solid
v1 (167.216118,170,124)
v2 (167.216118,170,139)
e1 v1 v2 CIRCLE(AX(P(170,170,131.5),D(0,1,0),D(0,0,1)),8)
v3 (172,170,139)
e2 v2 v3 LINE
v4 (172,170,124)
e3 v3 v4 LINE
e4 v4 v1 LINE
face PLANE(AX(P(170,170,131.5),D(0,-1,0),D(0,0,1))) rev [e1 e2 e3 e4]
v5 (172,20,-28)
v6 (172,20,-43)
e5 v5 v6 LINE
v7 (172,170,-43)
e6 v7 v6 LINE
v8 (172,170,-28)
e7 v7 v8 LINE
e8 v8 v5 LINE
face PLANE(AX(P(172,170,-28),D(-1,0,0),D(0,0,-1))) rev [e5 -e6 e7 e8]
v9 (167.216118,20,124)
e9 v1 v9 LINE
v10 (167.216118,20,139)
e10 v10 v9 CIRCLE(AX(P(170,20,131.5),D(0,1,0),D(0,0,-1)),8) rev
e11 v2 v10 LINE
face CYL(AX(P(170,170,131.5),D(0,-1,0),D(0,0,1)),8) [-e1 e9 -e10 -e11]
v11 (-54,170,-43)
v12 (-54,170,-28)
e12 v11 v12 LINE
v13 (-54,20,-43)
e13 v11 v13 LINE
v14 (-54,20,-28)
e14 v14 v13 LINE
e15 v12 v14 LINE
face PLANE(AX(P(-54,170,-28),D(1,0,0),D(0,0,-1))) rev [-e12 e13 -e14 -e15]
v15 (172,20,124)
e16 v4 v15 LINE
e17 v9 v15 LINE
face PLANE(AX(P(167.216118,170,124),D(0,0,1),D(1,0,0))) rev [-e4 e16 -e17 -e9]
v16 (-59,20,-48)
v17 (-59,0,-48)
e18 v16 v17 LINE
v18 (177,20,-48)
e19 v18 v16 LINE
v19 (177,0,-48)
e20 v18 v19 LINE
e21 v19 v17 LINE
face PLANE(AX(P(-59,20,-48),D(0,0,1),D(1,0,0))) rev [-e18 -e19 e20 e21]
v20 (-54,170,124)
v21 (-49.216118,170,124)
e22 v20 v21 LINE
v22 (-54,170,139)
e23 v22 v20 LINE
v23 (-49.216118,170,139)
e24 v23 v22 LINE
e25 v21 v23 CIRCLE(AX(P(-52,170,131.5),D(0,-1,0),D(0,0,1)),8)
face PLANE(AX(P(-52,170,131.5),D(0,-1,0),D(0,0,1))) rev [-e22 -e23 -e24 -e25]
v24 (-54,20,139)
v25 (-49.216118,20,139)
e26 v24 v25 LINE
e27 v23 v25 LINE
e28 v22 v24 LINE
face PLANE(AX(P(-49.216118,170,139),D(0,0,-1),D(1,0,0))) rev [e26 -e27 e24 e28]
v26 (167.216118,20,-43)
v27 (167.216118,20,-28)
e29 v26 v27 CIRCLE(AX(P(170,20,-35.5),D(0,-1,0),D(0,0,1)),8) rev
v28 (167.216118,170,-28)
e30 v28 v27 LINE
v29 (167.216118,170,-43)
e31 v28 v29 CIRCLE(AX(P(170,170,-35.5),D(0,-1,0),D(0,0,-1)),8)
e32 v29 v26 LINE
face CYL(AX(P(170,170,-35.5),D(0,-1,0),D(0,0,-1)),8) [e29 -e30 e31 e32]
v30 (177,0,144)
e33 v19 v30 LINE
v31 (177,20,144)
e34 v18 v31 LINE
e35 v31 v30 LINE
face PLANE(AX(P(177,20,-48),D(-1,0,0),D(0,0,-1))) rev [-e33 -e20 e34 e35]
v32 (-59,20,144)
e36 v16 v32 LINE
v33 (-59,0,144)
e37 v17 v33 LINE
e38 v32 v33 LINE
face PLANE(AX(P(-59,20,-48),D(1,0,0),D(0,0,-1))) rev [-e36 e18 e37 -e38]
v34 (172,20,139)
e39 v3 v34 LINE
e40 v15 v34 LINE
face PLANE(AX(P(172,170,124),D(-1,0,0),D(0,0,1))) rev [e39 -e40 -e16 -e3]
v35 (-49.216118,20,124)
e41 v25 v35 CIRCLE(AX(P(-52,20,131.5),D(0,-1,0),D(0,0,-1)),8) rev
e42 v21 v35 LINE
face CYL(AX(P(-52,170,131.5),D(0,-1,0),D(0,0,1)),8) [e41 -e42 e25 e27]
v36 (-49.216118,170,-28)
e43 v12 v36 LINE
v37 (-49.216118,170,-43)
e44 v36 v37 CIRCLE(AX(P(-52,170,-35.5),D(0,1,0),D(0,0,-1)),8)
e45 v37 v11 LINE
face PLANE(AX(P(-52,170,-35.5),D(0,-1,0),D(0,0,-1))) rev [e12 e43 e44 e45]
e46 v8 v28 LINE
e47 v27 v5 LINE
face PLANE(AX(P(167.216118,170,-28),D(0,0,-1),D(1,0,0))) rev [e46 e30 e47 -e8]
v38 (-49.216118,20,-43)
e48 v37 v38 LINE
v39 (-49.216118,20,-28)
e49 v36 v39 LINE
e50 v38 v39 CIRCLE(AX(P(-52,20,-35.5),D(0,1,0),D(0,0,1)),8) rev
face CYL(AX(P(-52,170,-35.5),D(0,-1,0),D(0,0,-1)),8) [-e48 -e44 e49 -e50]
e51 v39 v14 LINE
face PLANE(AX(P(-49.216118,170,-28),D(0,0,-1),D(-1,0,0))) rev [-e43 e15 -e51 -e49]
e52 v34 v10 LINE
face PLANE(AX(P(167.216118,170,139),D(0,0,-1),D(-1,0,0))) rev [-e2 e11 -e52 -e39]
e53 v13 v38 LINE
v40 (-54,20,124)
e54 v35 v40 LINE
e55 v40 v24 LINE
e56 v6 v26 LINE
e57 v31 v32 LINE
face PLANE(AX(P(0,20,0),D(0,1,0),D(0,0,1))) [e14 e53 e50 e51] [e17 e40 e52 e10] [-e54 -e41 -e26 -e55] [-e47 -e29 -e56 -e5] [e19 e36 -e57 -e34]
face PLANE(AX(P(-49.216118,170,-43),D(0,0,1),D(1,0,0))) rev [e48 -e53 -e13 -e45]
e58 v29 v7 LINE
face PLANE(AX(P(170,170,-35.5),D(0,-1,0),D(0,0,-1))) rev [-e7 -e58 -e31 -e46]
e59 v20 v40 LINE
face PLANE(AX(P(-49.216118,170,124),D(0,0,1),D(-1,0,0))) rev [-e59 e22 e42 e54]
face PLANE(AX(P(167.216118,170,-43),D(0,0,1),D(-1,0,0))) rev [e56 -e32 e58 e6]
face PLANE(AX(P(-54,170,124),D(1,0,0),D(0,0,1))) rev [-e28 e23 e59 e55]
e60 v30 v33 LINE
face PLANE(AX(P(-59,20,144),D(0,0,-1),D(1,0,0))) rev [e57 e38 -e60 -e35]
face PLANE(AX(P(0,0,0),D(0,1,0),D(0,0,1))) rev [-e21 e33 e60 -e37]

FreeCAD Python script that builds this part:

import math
import FreeCAD as App
import Part
import Sketcher

V = App.Vector
Q = App.Units.Quantity


def add_polygon(sketch, points):
    """Adds a closed chain of lines whose ends are joined by coincident constraints."""
    first, n = sketch.GeometryCount, len(points)
    for a, b in zip(points, points[1:] + points[:1]):
        sketch.addGeometry(Part.LineSegment(App.Vector(*a, 0), App.Vector(*b, 0)), False)
    for i in range(n):
        sketch.addConstraint(Sketcher.Constraint("Coincident", first + i, 2, first + (i + 1) % n, 1))

doc = App.newDocument("Part")
params = doc.addObject("Spreadsheet::Sheet", "Params")
for row, (alias, value) in enumerate([
    ("sketch1_width", "118 mm"),
    ("sketch1_height", "96 mm"),
    ("pad1_length", "20 mm"),
    ("sketch2_radius", "8 mm"),
    ("sketch2_height", "15 mm"),
    ("pad2_length", "170 mm"),
], start=1):
    params.set(f"A{row}", alias)
    params.set(f"B{row}", "=" + value)
    params.setAlias(f"B{row}", alias)

body = doc.addObject("PartDesign::Body", "Body")

sketch1 = doc.addObject("Sketcher::SketchObject", "Sketch")
body.addObject(sketch1)
sketch1.AttachmentSupport = (doc.XZ_Plane, [""])
sketch1.MapMode = "FlatFace"
add_polygon(sketch1, [(-59, -48), (-59, 48), (59, 48), (59, -48)])
sketch1.addConstraint(Sketcher.Constraint("Vertical", 0))
sketch1.addConstraint(Sketcher.Constraint("Horizontal", 1))
sketch1.addConstraint(Sketcher.Constraint("Vertical", 2))
sketch1.addConstraint(Sketcher.Constraint("Horizontal", 3))
sketch1.addConstraint(Sketcher.Constraint("Symmetric", 0, 2, 2, 2, -1, 1))
sketch1.addConstraint(Sketcher.Constraint("DistanceX", 1, 1, 1, 2, Q("118 mm")))
sketch1.addConstraint(Sketcher.Constraint("DistanceY", 0, 1, 0, 2, Q("96 mm")))
sketch1.setExpression("Constraints[9]", "Params.sketch1_width")
sketch1.setExpression("Constraints[10]", "Params.sketch1_height")
pad1 = doc.addObject("PartDesign::Pad", "Pad")
body.addObject(pad1)
pad1.Profile = sketch1
pad1.setExpression("Length", "Params.pad1_length")
pad1.Reversed = True

sketch2 = doc.addObject("Sketcher::SketchObject", "Sketch001")
body.addObject(sketch2)
sketch2.AttachmentSupport = (doc.XZ_Plane, [""])
sketch2.MapMode = "FlatFace"
sketch2.addGeometry(Part.LineSegment(V(-54, -28, 0), V(-49.2, -28, 0)), False)
sketch2.addGeometry(Part.ArcOfCircle(Part.Circle(V(-52, -35.5, 0), V(0, 0, 1), 8), math.radians(-70), math.radians(70)), False)
sketch2.addGeometry(Part.LineSegment(V(-49.2, -43, 0), V(-54, -43, 0)), False)
sketch2.addGeometry(Part.LineSegment(V(-54, -43, 0), V(-54, -28, 0)), False)
sketch2.addConstraint(Sketcher.Constraint("Coincident", 0, 2, 1, 2))
sketch2.addConstraint(Sketcher.Constraint("Coincident", 1, 1, 2, 1))
sketch2.addConstraint(Sketcher.Constraint("Coincident", 2, 2, 3, 1))
sketch2.addConstraint(Sketcher.Constraint("Coincident", 3, 2, 0, 1))
sketch2.addConstraint(Sketcher.Constraint("Horizontal", 0))
sketch2.addConstraint(Sketcher.Constraint("Horizontal", 2))
sketch2.addConstraint(Sketcher.Constraint("Vertical", 3))
sketch2.addConstraint(Sketcher.Constraint("Vertical", 0, 2, 1, 1))
sketch2.addConstraint(Sketcher.Constraint("Radius", 1, Q("8 mm")))
sketch2.addConstraint(Sketcher.Constraint("DistanceY", 3, 1, 3, 2, Q("15 mm")))
sketch2.addConstraint(Sketcher.Constraint("DistanceX", 1, 3, -1, 1, Q("52 mm")))
sketch2.addConstraint(Sketcher.Constraint("DistanceY", 0, 2, -1, 1, Q("28 mm")))
sketch2.addConstraint(Sketcher.Constraint("DistanceX", 2, 2, -1, 1, Q("54 mm")))
sketch2.setExpression("Constraints[8]", "Params.sketch2_radius")
sketch2.setExpression("Constraints[9]", "Params.sketch2_height")
pad2 = doc.addObject("PartDesign::Pad", "Pad001")
body.addObject(pad2)
pad2.Profile = sketch2
pad2.setExpression("Length", "Params.pad2_length")
pad2.Reversed = True
body2 = doc.addObject("PartDesign::Body", "Body001")
doc.recompute()

body2.BaseFeature = body
doc.recompute()

mirroring = doc.addObject("Part::Mirroring", "Mirroring")
mirroring.Source = body
mirroring.Base = V(-59, 20, 48)
mirroring.Normal = V(0, 0, -1)
body3 = doc.addObject("PartDesign::Body", "Body002")
body3.BaseFeature = mirroring
boolean = doc.addObject("PartDesign::Boolean", "Boolean")
body2.addObject(boolean)
boolean.Type = "Fuse"
boolean.addObjects([body3])
doc.recompute()
body4 = doc.addObject("PartDesign::Body", "Body003")
doc.recompute()

body4.BaseFeature = body2
doc.recompute()

mirroring2 = doc.addObject("Part::Mirroring", "Mirroring001")
mirroring2.Source = body2
mirroring2.Base = V(59, 20, -48)
mirroring2.Normal = V(-1, 0, 0)
body5 = doc.addObject("PartDesign::Body", "Body004")
body5.BaseFeature = mirroring2
boolean2 = doc.addObject("PartDesign::Boolean", "Boolean001")
body4.addObject(boolean2)
boolean2.Type = "Fuse"
boolean2.addObjects([body5])
doc.recompute()
mirroring.Visibility = False
mirroring2.Visibility = False

doc.recompute()
